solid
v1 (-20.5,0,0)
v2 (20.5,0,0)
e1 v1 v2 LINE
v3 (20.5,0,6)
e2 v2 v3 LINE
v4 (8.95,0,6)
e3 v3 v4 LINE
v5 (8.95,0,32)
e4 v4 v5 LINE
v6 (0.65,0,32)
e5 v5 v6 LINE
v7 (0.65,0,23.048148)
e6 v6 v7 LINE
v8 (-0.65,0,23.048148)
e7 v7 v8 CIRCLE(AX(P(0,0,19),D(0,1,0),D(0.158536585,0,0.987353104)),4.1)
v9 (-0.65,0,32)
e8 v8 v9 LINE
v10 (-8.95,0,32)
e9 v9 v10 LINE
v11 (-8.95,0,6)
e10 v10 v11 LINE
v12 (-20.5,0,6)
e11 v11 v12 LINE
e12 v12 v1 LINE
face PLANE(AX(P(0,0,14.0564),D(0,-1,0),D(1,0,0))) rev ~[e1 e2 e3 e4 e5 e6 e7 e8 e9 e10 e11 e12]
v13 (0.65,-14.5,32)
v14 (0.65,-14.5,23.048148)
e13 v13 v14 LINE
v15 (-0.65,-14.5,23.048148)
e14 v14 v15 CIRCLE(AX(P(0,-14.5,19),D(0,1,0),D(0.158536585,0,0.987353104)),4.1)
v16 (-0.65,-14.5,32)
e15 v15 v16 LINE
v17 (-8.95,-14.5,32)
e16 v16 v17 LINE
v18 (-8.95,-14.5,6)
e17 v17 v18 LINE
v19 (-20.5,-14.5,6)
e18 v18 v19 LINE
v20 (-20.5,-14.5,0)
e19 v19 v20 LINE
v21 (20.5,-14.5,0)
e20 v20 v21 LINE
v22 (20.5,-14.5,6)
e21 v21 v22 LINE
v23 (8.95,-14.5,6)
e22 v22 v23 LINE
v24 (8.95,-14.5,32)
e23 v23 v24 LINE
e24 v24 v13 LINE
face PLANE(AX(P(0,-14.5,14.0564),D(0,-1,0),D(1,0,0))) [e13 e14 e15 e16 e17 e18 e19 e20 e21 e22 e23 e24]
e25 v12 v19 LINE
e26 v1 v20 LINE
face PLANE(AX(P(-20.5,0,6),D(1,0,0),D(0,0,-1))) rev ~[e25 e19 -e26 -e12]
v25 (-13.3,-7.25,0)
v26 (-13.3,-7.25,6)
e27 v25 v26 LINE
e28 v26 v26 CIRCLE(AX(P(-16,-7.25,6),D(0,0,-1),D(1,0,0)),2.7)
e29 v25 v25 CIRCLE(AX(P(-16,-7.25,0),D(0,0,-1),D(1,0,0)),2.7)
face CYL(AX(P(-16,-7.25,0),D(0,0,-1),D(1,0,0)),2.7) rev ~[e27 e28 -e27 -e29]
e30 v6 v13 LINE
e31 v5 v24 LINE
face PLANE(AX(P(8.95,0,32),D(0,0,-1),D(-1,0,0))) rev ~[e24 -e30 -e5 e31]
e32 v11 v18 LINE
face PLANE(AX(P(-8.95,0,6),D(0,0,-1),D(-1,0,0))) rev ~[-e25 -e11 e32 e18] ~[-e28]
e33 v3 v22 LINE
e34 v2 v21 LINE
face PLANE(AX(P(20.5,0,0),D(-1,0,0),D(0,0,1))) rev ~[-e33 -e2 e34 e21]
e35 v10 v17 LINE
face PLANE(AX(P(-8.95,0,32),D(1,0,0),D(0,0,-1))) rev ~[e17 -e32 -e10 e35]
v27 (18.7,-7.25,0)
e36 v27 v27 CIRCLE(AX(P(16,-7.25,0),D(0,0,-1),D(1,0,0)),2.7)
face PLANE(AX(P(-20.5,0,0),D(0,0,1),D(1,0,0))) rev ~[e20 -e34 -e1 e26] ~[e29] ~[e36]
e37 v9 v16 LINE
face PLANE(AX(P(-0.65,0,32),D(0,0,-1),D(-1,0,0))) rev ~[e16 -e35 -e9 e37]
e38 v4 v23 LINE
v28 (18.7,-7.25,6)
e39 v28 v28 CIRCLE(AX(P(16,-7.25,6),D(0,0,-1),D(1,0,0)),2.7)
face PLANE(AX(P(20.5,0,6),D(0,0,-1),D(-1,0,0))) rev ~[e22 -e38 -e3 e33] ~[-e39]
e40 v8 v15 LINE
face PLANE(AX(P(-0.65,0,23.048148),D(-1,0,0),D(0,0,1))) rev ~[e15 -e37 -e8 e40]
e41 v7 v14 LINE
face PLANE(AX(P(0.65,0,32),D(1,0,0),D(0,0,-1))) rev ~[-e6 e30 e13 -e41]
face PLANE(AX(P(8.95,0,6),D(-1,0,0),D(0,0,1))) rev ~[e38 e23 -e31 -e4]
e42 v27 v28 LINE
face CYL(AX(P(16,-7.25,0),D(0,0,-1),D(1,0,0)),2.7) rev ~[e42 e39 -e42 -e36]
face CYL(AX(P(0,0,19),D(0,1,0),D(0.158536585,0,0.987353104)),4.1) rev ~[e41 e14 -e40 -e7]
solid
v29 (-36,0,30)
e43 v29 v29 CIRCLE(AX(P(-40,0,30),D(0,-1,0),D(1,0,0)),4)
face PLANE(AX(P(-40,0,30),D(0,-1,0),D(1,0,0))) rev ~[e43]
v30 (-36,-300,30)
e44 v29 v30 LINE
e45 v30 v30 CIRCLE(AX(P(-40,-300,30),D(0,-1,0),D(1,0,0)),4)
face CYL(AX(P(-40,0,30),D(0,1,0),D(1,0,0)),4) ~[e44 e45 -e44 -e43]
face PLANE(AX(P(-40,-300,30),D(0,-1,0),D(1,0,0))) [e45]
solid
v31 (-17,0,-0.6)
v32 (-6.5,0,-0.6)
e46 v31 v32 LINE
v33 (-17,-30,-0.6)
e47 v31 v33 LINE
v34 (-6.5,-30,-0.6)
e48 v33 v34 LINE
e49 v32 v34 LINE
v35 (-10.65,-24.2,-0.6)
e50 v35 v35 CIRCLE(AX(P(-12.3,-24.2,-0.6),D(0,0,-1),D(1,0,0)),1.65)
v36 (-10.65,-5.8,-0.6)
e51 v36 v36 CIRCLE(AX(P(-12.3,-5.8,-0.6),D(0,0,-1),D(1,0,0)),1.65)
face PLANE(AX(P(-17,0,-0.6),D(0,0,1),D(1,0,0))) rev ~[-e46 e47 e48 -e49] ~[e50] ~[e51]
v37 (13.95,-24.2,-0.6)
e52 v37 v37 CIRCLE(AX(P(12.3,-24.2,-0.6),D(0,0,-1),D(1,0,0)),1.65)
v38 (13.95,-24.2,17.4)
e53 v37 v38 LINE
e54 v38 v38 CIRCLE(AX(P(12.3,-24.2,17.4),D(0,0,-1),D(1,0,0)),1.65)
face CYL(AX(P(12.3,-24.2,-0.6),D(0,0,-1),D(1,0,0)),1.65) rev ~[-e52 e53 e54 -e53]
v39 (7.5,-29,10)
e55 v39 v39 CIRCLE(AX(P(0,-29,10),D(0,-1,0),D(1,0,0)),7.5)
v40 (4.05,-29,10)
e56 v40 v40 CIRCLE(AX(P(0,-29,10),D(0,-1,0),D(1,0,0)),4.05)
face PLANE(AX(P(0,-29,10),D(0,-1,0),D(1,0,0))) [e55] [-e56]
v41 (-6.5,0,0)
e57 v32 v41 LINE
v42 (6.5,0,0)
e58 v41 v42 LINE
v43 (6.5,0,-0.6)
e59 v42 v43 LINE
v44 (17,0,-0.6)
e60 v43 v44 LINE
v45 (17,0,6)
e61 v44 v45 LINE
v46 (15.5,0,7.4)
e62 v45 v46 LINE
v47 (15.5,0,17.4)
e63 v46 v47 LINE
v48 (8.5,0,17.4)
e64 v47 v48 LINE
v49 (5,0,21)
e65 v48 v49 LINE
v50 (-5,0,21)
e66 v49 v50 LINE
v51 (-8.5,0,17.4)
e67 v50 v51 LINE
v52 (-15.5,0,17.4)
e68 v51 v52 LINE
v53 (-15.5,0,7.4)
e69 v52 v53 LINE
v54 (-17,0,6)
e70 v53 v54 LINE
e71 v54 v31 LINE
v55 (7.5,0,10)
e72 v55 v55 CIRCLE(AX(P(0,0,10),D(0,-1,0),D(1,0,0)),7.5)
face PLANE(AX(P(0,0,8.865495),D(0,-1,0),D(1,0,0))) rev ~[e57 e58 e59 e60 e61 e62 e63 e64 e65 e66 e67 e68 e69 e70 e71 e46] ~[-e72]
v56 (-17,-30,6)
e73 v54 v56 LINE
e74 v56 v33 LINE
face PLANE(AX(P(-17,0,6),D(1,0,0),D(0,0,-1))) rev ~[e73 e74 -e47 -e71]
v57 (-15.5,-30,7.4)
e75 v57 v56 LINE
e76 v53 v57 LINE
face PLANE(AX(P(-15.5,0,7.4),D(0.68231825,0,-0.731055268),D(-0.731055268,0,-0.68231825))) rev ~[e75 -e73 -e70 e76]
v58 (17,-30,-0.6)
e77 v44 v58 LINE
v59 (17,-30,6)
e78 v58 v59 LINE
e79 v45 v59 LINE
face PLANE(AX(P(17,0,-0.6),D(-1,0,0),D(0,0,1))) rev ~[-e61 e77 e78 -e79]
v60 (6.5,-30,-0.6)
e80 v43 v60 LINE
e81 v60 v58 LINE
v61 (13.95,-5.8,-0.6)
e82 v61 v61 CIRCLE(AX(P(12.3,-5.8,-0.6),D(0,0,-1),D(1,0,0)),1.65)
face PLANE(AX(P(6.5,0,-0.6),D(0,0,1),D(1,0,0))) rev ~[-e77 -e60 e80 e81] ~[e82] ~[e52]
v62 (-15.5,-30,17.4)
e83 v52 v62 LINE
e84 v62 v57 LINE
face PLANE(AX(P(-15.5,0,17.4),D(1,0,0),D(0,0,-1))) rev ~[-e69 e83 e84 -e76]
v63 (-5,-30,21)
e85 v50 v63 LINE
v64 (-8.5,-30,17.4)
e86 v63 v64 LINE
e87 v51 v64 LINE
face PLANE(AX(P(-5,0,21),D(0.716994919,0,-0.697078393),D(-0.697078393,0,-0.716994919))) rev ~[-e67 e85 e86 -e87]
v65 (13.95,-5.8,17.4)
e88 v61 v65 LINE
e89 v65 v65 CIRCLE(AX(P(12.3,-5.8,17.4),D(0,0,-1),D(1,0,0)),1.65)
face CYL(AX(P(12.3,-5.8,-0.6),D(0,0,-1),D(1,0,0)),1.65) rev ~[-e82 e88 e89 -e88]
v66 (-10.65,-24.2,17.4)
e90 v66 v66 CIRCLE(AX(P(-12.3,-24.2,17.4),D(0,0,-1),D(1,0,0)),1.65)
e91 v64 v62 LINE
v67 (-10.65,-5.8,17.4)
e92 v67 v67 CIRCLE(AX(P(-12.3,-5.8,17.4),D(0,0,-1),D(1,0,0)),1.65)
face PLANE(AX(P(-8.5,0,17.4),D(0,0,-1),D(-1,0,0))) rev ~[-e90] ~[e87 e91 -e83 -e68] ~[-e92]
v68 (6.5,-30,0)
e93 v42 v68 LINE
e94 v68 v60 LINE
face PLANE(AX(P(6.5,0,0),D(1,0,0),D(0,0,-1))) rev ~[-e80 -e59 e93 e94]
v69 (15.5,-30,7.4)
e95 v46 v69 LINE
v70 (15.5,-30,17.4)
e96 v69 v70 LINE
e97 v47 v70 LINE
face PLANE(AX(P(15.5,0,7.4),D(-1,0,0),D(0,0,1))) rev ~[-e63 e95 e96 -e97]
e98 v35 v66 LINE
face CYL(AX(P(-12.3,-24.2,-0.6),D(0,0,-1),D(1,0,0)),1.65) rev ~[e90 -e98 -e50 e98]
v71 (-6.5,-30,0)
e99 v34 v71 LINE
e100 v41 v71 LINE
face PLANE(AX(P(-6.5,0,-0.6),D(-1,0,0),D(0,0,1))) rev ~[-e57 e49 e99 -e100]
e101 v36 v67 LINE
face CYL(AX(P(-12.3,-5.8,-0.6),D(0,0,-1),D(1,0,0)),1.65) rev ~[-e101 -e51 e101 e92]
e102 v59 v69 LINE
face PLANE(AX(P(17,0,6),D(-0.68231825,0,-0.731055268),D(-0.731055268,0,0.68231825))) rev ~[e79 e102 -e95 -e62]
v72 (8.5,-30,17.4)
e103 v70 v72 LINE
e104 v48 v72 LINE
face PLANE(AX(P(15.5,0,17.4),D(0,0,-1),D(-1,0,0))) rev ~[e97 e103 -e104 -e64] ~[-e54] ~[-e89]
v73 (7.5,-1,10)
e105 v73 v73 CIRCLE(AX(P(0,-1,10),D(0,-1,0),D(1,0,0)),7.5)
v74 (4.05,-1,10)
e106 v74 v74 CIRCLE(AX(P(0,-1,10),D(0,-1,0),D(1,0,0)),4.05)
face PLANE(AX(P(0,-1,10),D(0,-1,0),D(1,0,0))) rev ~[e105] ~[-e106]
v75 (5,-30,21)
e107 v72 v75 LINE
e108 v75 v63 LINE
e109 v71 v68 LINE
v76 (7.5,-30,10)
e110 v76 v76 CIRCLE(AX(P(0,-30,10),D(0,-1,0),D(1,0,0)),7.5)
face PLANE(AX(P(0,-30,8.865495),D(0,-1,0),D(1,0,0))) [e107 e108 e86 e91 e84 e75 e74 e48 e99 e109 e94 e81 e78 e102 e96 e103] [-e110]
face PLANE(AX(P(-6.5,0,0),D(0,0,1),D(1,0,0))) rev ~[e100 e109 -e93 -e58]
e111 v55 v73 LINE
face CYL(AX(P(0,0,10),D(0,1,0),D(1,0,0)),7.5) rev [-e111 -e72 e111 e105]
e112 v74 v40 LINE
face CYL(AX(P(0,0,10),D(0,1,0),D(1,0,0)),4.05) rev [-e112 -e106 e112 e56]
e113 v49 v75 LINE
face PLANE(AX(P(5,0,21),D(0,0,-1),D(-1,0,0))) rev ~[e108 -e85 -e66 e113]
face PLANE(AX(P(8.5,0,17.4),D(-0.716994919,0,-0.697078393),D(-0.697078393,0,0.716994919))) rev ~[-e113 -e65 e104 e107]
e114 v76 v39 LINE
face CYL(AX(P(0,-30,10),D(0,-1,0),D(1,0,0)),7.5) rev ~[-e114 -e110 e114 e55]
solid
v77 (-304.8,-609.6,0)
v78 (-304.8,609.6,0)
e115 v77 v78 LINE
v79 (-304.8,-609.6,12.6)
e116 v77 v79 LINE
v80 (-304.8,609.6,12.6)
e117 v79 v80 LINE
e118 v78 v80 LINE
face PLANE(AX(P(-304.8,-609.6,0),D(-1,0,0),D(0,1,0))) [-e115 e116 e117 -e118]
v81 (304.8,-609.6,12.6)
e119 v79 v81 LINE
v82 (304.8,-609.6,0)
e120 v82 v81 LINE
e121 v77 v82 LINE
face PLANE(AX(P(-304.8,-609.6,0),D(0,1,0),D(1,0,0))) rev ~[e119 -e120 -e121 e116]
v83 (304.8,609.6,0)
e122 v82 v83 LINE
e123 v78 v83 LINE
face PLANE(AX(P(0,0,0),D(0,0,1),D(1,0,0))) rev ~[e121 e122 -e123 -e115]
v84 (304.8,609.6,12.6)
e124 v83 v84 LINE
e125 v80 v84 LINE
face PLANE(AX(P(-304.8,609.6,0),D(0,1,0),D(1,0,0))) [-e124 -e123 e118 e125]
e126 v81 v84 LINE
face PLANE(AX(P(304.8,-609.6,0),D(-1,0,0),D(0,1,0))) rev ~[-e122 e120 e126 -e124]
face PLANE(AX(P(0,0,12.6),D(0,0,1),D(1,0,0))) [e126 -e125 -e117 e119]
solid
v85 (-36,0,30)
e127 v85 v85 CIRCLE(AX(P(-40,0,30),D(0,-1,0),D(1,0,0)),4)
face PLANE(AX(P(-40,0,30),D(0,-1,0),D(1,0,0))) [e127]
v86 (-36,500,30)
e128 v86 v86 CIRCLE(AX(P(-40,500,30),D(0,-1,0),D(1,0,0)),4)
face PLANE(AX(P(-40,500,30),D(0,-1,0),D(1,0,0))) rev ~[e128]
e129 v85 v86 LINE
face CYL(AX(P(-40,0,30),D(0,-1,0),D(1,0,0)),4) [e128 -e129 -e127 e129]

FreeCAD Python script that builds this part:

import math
import FreeCAD as App
import Part
import Sketcher

V = App.Vector
Q = App.Units.Quantity

doc = App.newDocument("Part")
body = doc.addObject("PartDesign::Body", "Body")

# Sketch on XZ plane
sketch1 = body.newObject("Sketcher::SketchObject", "Sketch")
sketch1.AttachmentSupport = (doc.getObject("XZ_Plane"), [""])
sketch1.MapMode = "FlatFace"
sketch1.addGeometry([
    Part.LineSegment(V(-20.5, 6, 0), V(-20.5, 0, 0)),  # 0
    Part.LineSegment(V(-20.5, 0, 0), V(20.5, 0, 0)),  # 1
    Part.LineSegment(V(20.5, 0, 0), V(20.5, 6, 0)),  # 2
    Part.LineSegment(V(20.5, 6, 0), V(8.95, 6, 0)),  # 3
    Part.LineSegment(V(8.95, 6, 0), V(8.95, 32, 0)),  # 4
    Part.LineSegment(V(8.95, 32, 0), V(0.65, 32, 0)),  # 5
    Part.LineSegment(V(0.65, 32, 0), V(0.65, 23.048148, 0)),  # 6
    Part.ArcOfCircle(Part.Circle(V(0, 19, 0), V(0, 0, 1), 4.1), math.radians(99.121965), math.radians(440.878035)),  # 7
    Part.LineSegment(V(-0.65, 23.048148, 0), V(-0.65, 32, 0)),  # 8
    Part.LineSegment(V(-0.65, 32, 0), V(-8.95, 32, 0)),  # 9
    Part.LineSegment(V(-8.95, 32, 0), V(-8.95, 6, 0)),  # 10
    Part.LineSegment(V(-8.95, 6, 0), V(-20.5, 6, 0)),  # 11
], False)
sketch1.addConstraint([
    Sketcher.Constraint("Coincident", 0, 2, 1, 1),
    Sketcher.Constraint("Coincident", 1, 2, 2, 1),
    Sketcher.Constraint("Coincident", 2, 2, 3, 1),
    Sketcher.Constraint("Coincident", 3, 2, 4, 1),
    Sketcher.Constraint("Coincident", 4, 2, 5, 1),
    Sketcher.Constraint("Coincident", 5, 2, 6, 1),
    Sketcher.Constraint("Coincident", 6, 2, 7, 2),
    Sketcher.Constraint("Coincident", 7, 1, 8, 1),
    Sketcher.Constraint("Coincident", 8, 2, 9, 1),
    Sketcher.Constraint("Coincident", 9, 2, 10, 1),
    Sketcher.Constraint("Coincident", 10, 2, 11, 1),
    Sketcher.Constraint("Coincident", 11, 2, 0, 1),
    Sketcher.Constraint("Vertical", 0),
    Sketcher.Constraint("Horizontal", 1),
    Sketcher.Constraint("Vertical", 2),
    Sketcher.Constraint("Horizontal", 3),
    Sketcher.Constraint("Vertical", 4),
    Sketcher.Constraint("Horizontal", 5),
    Sketcher.Constraint("Vertical", 6),
    Sketcher.Constraint("Vertical", 8),
    Sketcher.Constraint("Horizontal", 9),
    Sketcher.Constraint("Vertical", 10),
    Sketcher.Constraint("Horizontal", 11),
    Sketcher.Constraint("Symmetric", 0, 2, 1, 2, -1, 1),
    Sketcher.Constraint("Symmetric", 6, 2, 7, 1, -2),
    Sketcher.Constraint("Symmetric", 4, 2, 9, 2, -2),
    Sketcher.Constraint("Horizontal", 3, 2, 10, 2),
    Sketcher.Constraint("Radius", 7, Q("4.1 mm")),
    Sketcher.Constraint("DistanceX", 1, 1, 1, 2, Q("41 mm")),
    Sketcher.Constraint("DistanceY", 0, 2, 0, 1, Q("6 mm")),
    Sketcher.Constraint("DistanceY", 4, 1, 4, 2, Q("26 mm")),
    Sketcher.Constraint("DistanceX", 5, 2, 5, 1, Q("8.3 mm")),
    Sketcher.Constraint("DistanceY", -1, 1, 7, 3, Q("19 mm")),
    Sketcher.Constraint("DistanceX", 3, 2, 3, 1, Q("11.55 mm")),
])
pad1 = body.newObject("PartDesign::Pad", "Pad")
pad1.Profile = sketch1
pad1.Length = 14.5

# Sketch on XY plane
sketch2 = body.newObject("Sketcher::SketchObject", "Sketch001")
sketch2.AttachmentSupport = (doc.getObject("XY_Plane"), [""])
sketch2.MapMode = "FlatFace"
sketch2.addGeometry([
    Part.Circle(V(-16, -7.25, 0), V(0, 0, 1), 2.7),
    Part.Circle(V(16, -7.25, 0), V(0, 0, 1), 2.7),
], False)
sketch2.addConstraint([
    Sketcher.Constraint("Equal", 0, 1),
    Sketcher.Constraint("Symmetric", 0, 3, 1, 3, -2),
    Sketcher.Constraint("Diameter", 0, Q("5.4 mm")),
    Sketcher.Constraint("DistanceX", 0, 3, -1, 1, Q("16 mm")),
    Sketcher.Constraint("DistanceY", 0, 3, -1, 1, Q("7.25 mm")),
])
pocket1 = body.newObject("PartDesign::Pocket", "Pocket")
pocket1.Profile = sketch2
pocket1.Type = "ThroughAll"
pocket1.Reversed = True
body2 = doc.addObject("PartDesign::Body", "Body001")

# Sketch on XZ plane
sketch3 = body2.newObject("Sketcher::SketchObject", "Sketch002")
sketch3.AttachmentSupport = (doc.getObject("XZ_Plane001"), [""])
sketch3.MapMode = "FlatFace"
sketch3.addGeometry(Part.Circle(V(-40, 30, 0), V(0, 0, 1), 4), False)
sketch3.addConstraint([
    Sketcher.Constraint("Diameter", 0, Q("8 mm")),
    Sketcher.Constraint("DistanceX", 0, 3, -1, 1, Q("40 mm")),
    Sketcher.Constraint("DistanceY", -1, 1, 0, 3, Q("30 mm")),
])
pad2 = body2.newObject("PartDesign::Pad", "Pad001")
pad2.Profile = sketch3
pad2.Length = 300
body3 = doc.addObject("PartDesign::Body", "Body002")

# Sketch on XZ plane
sketch4 = body3.newObject("Sketcher::SketchObject", "Sketch003")
sketch4.AttachmentSupport = (doc.getObject("XZ_Plane002"), [""])
sketch4.MapMode = "FlatFace"
sketch4.addGeometry(Part.Circle(V(-40, 30, 0), V(0, 0, 1), 4), False)
sketch4.addConstraint([
    Sketcher.Constraint("Diameter", 0, Q("8 mm")),
    Sketcher.Constraint("DistanceX", 0, 3, -1, 1, Q("40 mm")),
    Sketcher.Constraint("DistanceY", -1, 1, 0, 3, Q("30 mm")),
])
pad3 = body3.newObject("PartDesign::Pad", "Pad002")
pad3.Profile = sketch4
pad3.Length = 500
pad3.Reversed = True
body4 = doc.addObject("PartDesign::Body", "Body003")

# Sketch on XZ plane
sketch5 = body4.newObject("Sketcher::SketchObject", "Sketch004")
sketch5.AttachmentSupport = (doc.getObject("XZ_Plane003"), [""])
sketch5.MapMode = "FlatFace"
sketch5.addGeometry([
    Part.LineSegment(V(-6.5, 0, 0), V(6.5, 0, 0)),  # 0
    Part.LineSegment(V(6.5, 0, 0), V(6.5, -0.6, 0)),  # 1
    Part.LineSegment(V(6.5, -0.6, 0), V(17, -0.6, 0)),  # 2
    Part.LineSegment(V(17, -0.6, 0), V(17, 6, 0)),  # 3
    Part.LineSegment(V(17, 6, 0), V(15.5, 7.4, 0)),  # 4
    Part.LineSegment(V(15.5, 7.4, 0), V(15.5, 17.4, 0)),  # 5
    Part.LineSegment(V(15.5, 17.4, 0), V(8.5, 17.4, 0)),  # 6
    Part.LineSegment(V(8.5, 17.4, 0), V(5, 21, 0)),  # 7
    Part.LineSegment(V(5, 21, 0), V(-5, 21, 0)),  # 8
    Part.LineSegment(V(-5, 21, 0), V(-8.5, 17.4, 0)),  # 9
    Part.LineSegment(V(-8.5, 17.4, 0), V(-15.5, 17.4, 0)),  # 10
    Part.LineSegment(V(-15.5, 17.4, 0), V(-15.5, 7.4, 0)),  # 11
    Part.LineSegment(V(-15.5, 7.4, 0), V(-17, 6, 0)),  # 12
    Part.LineSegment(V(-17, 6, 0), V(-17, -0.6, 0)),  # 13
    Part.LineSegment(V(-17, -0.6, 0), V(-6.5, -0.6, 0)),  # 14
    Part.LineSegment(V(-6.5, -0.6, 0), V(-6.5, 0, 0)),  # 15
    Part.Circle(V(0, 10, 0), V(0, 0, 1), 4.05),  # 16
], False)
sketch5.addConstraint([
    Sketcher.Constraint("Coincident", 0, 2, 1, 1),
    Sketcher.Constraint("Coincident", 1, 2, 2, 1),
    Sketcher.Constraint("Coincident", 2, 2, 3, 1),
    Sketcher.Constraint("Coincident", 3, 2, 4, 1),
    Sketcher.Constraint("Coincident", 4, 2, 5, 1),
    Sketcher.Constraint("Coincident", 5, 2, 6, 1),
    Sketcher.Constraint("Coincident", 6, 2, 7, 1),
    Sketcher.Constraint("Coincident", 7, 2, 8, 1),
    Sketcher.Constraint("Coincident", 8, 2, 9, 1),
    Sketcher.Constraint("Coincident", 9, 2, 10, 1),
    Sketcher.Constraint("Coincident", 10, 2, 11, 1),
    Sketcher.Constraint("Coincident", 11, 2, 12, 1),
    Sketcher.Constraint("Coincident", 12, 2, 13, 1),
    Sketcher.Constraint("Coincident", 13, 2, 14, 1),
    Sketcher.Constraint("Coincident", 14, 2, 15, 1),
    Sketcher.Constraint("Coincident", 15, 2, 0, 1),
    Sketcher.Constraint("Horizontal", 0),
    Sketcher.Constraint("Vertical", 1),
    Sketcher.Constraint("Horizontal", 2),
    Sketcher.Constraint("Vertical", 3),
    Sketcher.Constraint("Vertical", 5),
    Sketcher.Constraint("Horizontal", 6),
    Sketcher.Constraint("Horizontal", 8),
    Sketcher.Constraint("Horizontal", 10),
    Sketcher.Constraint("Vertical", 11),
    Sketcher.Constraint("Vertical", 13),
    Sketcher.Constraint("Horizontal", 14),
    Sketcher.Constraint("Vertical", 15),
    Sketcher.Constraint("Symmetric", 0, 2, 15, 2, -1, 1),
    Sketcher.Constraint("Symmetric", 6, 2, 9, 2, -2),
    Sketcher.Constraint("Symmetric", 4, 2, 11, 2, -2),
    Sketcher.Constraint("Symmetric", 3, 2, 12, 2, -2),
    Sketcher.Constraint("PointOnObject", 16, 3, -2),
    Sketcher.Constraint("Horizontal", 2, 2, 13, 2),
    Sketcher.Constraint("Equal", 8, 5),
    Sketcher.Constraint("Equal", 7, 9),
    Sketcher.Constraint("Diameter", 16, Q("8.1 mm")),
    Sketcher.Constraint("DistanceX", 0, 1, 0, 2, Q("13 mm")),
    Sketcher.Constraint("DistanceX", 6, 2, 6, 1, Q("7 mm")),
    Sketcher.Constraint("DistanceX", 8, 2, 8, 1, Q("10 mm")),
    Sketcher.Constraint("DistanceX", 2, 1, 2, 2, Q("10.5 mm")),
    Sketcher.Constraint("DistanceY", 1, 2, 1, 1, Q("0.6 mm")),
    Sketcher.Constraint("DistanceY", 3, 1, 3, 2, Q("6.6 mm")),
    Sketcher.Constraint("DistanceY", -1, 1, 16, 3, Q("10 mm")),
    Sketcher.Constraint("DistanceY", -1, 1, 7, 2, Q("21 mm")),
    Sketcher.Constraint("DistanceY", 2, 2, 4, 2, Q("8 mm")),
    Sketcher.Constraint("DistanceX", 0, 2, 4, 2, Q("9 mm")),
])
pad4 = body4.newObject("PartDesign::Pad", "Pad003")
pad4.Profile = sketch5
pad4.Length = 30

# Sketch on XY plane
sketch6 = body4.newObject("Sketcher::SketchObject", "Sketch005")
sketch6.AttachmentSupport = (doc.getObject("XY_Plane003"), [""])
sketch6.MapMode = "FlatFace"
sketch6.AttachmentOffset = App.Placement(V(0, 0, -0.6), App.Rotation())
sketch6.addGeometry([
    Part.Circle(V(-12.3, -24.2, 0), V(0, 0, 1), 1.65),
    Part.Circle(V(-12.3, -5.8, 0), V(0, 0, 1), 1.65),
    Part.Circle(V(12.3, -5.8, 0), V(0, 0, 1), 1.65),
    Part.Circle(V(12.3, -24.2, 0), V(0, 0, 1), 1.65),
], False)
sketch6.addConstraint([
    Sketcher.Constraint("Equal", 0, 1),
    Sketcher.Constraint("Equal", 1, 2),
    Sketcher.Constraint("Equal", 2, 3),
    Sketcher.Constraint("Symmetric", 1, 3, 2, 3, -2),
    Sketcher.Constraint("Symmetric", 0, 3, 3, 3, -2),
    Sketcher.Constraint("Vertical", 0, 3, 1, 3),
    Sketcher.Constraint("Diameter", 0, Q("3.3 mm")),
    Sketcher.Constraint("DistanceX", 0, 3, -1, 1, Q("12.3 mm")),
    Sketcher.Constraint("DistanceY", 0, 3, -1, 1, Q("24.2 mm")),
    Sketcher.Constraint("DistanceY", 1, 3, -1, 1, Q("5.8 mm")),
])
pocket2 = body4.newObject("PartDesign::Pocket", "Pocket001")
pocket2.Profile = sketch6
pocket2.Type = "ThroughAll"
pocket2.Reversed = True

# Sketch on XZ plane
sketch7 = body4.newObject("Sketcher::SketchObject", "Sketch006")
sketch7.AttachmentSupport = (doc.getObject("XZ_Plane003"), [""])
sketch7.MapMode = "FlatFace"
sketch7.addGeometry([
    Part.Circle(V(0, 10, 0), V(0, 0, 1), 7.5),
    Part.Circle(V(0, 10, 0), V(0, 0, 1), 4.05),
], False)
sketch7.addConstraint([
    Sketcher.Constraint("Coincident", 1, 3, 0, 3),
    Sketcher.Constraint("PointOnObject", 0, 3, -2),
    Sketcher.Constraint("Diameter", 0, Q("15 mm")),
    Sketcher.Constraint("Diameter", 1, Q("8.1 mm")),
    Sketcher.Constraint("DistanceY", -1, 1, 0, 3, Q("10 mm")),
])
pocket3 = body4.newObject("PartDesign::Pocket", "Pocket002")
pocket3.Profile = sketch7
pocket3.Length = 1
pocket3.Reversed = True

# Sketch on XZ plane
sketch8 = body4.newObject("Sketcher::SketchObject", "Sketch007")
sketch8.AttachmentSupport = (doc.getObject("XZ_Plane003"), [""])
sketch8.MapMode = "FlatFace"
sketch8.AttachmentOffset = App.Placement(V(0, 0, 30), App.Rotation())
sketch8.addGeometry([
    Part.Circle(V(0, 10, 0), V(0, 0, 1), 7.5),
    Part.Circle(V(0, 10, 0), V(0, 0, 1), 4.05),
], False)
sketch8.addConstraint([
    Sketcher.Constraint("Coincident", 1, 3, 0, 3),
    Sketcher.Constraint("PointOnObject", 0, 3, -2),
    Sketcher.Constraint("Diameter", 0, Q("15 mm")),
    Sketcher.Constraint("Diameter", 1, Q("8.1 mm")),
    Sketcher.Constraint("DistanceY", -1, 1, 0, 3, Q("10 mm")),
])
pocket4 = body4.newObject("PartDesign::Pocket", "Pocket003")
pocket4.Profile = sketch8
pocket4.Length = 1
body5 = doc.addObject("PartDesign::Body", "Body004")

# Sketch on XY plane
sketch9 = body5.newObject("Sketcher::SketchObject", "Sketch008")
sketch9.AttachmentSupport = (doc.getObject("XY_Plane004"), [""])
sketch9.MapMode = "FlatFace"
sketch9.addGeometry([
    Part.LineSegment(V(-304.8, 609.6, 0), V(-304.8, -609.6, 0)),
    Part.LineSegment(V(-304.8, -609.6, 0), V(304.8, -609.6, 0)),
    Part.LineSegment(V(304.8, -609.6, 0), V(304.8, 609.6, 0)),
    Part.LineSegment(V(304.8, 609.6, 0), V(-304.8, 609.6, 0)),
], False)
sketch9.addConstraint([
    Sketcher.Constraint("Coincident", 0, 2, 1, 1),
    Sketcher.Constraint("Coincident", 1, 2, 2, 1),
    Sketcher.Constraint("Coincident", 2, 2, 3, 1),
    Sketcher.Constraint("Coincident", 3, 2, 0, 1),
    Sketcher.Constraint("Vertical", 0),
    Sketcher.Constraint("Horizontal", 1),
    Sketcher.Constraint("Vertical", 2),
    Sketcher.Constraint("Horizontal", 3),
    Sketcher.Constraint("Symmetric", 0, 2, 2, 2, -1, 1),
    Sketcher.Constraint("DistanceX", 1, 1, 1, 2, Q("609.6 mm")),
    Sketcher.Constraint("DistanceY", 0, 2, 0, 1, Q("1219.2 mm")),
])
pad5 = body5.newObject("PartDesign::Pad", "Pad004")
pad5.Profile = sketch9
pad5.Length = 12.6

doc.recompute()
